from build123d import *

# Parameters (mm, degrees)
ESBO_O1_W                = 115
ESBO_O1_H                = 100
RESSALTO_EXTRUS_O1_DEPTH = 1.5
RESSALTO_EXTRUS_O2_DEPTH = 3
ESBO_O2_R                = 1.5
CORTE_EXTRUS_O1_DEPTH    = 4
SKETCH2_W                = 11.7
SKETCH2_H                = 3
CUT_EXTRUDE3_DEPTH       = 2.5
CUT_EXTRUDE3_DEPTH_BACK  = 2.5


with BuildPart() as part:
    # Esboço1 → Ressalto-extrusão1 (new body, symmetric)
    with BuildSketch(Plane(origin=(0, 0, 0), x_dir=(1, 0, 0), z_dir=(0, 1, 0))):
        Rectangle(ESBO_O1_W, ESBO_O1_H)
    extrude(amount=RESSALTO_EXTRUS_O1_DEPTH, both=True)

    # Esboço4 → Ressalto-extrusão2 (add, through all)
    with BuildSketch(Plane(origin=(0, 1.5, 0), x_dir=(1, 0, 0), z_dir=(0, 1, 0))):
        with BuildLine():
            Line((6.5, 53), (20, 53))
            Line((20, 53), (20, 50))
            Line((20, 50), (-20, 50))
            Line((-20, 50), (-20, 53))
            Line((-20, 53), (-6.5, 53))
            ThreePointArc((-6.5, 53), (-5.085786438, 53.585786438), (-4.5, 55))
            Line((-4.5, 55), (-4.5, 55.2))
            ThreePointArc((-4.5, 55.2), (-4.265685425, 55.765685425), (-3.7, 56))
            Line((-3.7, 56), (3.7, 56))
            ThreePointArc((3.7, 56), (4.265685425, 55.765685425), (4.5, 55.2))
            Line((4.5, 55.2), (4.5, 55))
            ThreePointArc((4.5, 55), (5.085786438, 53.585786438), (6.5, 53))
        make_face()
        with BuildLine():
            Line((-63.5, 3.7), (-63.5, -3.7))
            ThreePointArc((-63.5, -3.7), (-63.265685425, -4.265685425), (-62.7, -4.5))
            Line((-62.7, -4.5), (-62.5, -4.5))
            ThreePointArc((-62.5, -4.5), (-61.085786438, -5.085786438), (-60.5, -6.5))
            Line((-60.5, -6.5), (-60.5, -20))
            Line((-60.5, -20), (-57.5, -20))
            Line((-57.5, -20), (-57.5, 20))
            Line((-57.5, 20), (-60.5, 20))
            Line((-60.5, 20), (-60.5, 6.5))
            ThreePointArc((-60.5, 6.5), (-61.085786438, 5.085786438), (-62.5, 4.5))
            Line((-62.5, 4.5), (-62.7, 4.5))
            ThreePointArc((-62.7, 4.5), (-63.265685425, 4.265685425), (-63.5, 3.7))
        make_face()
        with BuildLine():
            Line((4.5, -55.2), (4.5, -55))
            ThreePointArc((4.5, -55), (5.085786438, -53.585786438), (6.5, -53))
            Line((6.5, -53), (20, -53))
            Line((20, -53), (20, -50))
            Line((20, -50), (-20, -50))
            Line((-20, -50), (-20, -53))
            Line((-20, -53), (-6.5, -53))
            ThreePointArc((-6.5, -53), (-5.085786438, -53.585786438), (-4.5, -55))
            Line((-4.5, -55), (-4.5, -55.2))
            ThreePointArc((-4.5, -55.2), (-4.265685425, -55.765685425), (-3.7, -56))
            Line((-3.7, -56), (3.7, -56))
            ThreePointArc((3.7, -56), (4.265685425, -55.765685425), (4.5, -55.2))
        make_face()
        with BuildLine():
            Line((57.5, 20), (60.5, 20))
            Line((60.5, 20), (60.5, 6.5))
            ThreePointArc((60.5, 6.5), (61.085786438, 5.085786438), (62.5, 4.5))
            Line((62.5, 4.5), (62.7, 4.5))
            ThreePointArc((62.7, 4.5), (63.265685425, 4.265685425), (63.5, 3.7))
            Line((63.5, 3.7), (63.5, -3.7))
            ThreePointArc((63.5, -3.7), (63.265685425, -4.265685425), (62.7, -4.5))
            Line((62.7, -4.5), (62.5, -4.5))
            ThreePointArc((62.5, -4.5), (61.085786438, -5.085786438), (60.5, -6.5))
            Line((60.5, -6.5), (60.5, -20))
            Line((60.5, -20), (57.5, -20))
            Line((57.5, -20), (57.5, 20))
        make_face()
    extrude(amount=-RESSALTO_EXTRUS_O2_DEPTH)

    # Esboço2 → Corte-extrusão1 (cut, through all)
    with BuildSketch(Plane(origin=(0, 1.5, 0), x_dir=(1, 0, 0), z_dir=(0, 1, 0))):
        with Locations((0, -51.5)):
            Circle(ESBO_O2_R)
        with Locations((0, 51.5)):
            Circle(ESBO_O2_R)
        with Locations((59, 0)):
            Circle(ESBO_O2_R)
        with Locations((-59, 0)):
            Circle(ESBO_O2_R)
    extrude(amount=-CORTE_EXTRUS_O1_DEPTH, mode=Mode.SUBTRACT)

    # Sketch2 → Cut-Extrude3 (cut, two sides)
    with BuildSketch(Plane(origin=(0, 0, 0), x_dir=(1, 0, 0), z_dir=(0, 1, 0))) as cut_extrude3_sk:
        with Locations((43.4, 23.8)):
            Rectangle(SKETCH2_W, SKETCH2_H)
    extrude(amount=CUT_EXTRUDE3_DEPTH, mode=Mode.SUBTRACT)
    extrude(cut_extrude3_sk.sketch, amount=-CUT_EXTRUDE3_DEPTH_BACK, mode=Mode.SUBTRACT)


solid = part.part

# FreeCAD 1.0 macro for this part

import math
import FreeCAD as App
import Part
import Sketcher

V = App.Vector
Q = App.Units.Quantity


def add_polygon(sketch, points):
    """Adds a closed chain of lines whose ends are joined by coincident constraints."""
    first, n = sketch.GeometryCount, len(points)
    for a, b in zip(points, points[1:] + points[:1]):
        sketch.addGeometry(Part.LineSegment(App.Vector(*a, 0), App.Vector(*b, 0)), False)
    for i in range(n):
        sketch.addConstraint(Sketcher.Constraint("Coincident", first + i, 2, first + (i + 1) % n, 1))

doc = App.newDocument("Part")
body = doc.addObject("PartDesign::Body", "Body")

sketch1 = doc.addObject("Sketcher::SketchObject", "Sketch")
body.addObject(sketch1)
sketch1.AttachmentSupport = (doc.XZ_Plane, [""])
sketch1.MapMode = "FlatFace"
add_polygon(sketch1, [(-58, -50), (-58, 50), (58, 50), (58, -50)])
sketch1.addConstraint([
    Sketcher.Constraint("Vertical", 0),
    Sketcher.Constraint("Horizontal", 1),
    Sketcher.Constraint("Vertical", 2),
    Sketcher.Constraint("Horizontal", 3),
    Sketcher.Constraint("Symmetric", 0, 2, 2, 2, -1, 1),
    Sketcher.Constraint("DistanceX", 1, 1, 1, 2, Q("115 mm")),
    Sketcher.Constraint("DistanceY", 0, 1, 0, 2, Q("100 mm")),
])
pad1 = doc.addObject("PartDesign::Pad", "Pad")
body.addObject(pad1)
pad1.Profile = sketch1
pad1.Length = 3
pad1.Midplane = True

sketch2 = doc.addObject("Sketcher::SketchObject", "Sketch001")
body.addObject(sketch2)
sketch2.AttachmentSupport = (doc.XZ_Plane, [""])
sketch2.MapMode = "FlatFace"
sketch2.AttachmentOffset = App.Placement(V(0, 0, -1.5), App.Rotation())
sketch2.addGeometry([
    Part.LineSegment(V(20, -53, 0), V(6.5, -53, 0)),
    Part.ArcOfCircle(Part.Circle(V(6.5, -55, 0), V(0, 0, 1), 2), math.radians(90), math.radians(180)),
    Part.LineSegment(V(4.5, -55, 0), V(4.5, -55.2, 0)),
    Part.ArcOfCircle(Part.Circle(V(3.7, -55.2, 0), V(0, 0, 1), 0.8), math.radians(-90), math.radians(0)),
    Part.LineSegment(V(3.7, -56, 0), V(-3.7, -56, 0)),
    Part.ArcOfCircle(Part.Circle(V(-3.7, -55.2, 0), V(0, 0, 1), 0.8), math.radians(180), math.radians(270)),
    Part.LineSegment(V(-4.5, -55.2, 0), V(-4.5, -55, 0)),
    Part.ArcOfCircle(Part.Circle(V(-6.5, -55, 0), V(0, 0, 1), 2), math.radians(0), math.radians(90)),
    Part.LineSegment(V(-6.5, -53, 0), V(-20, -53, 0)),
    Part.LineSegment(V(-20, -53, 0), V(-20, -50, 0)),
    Part.LineSegment(V(-20, -50, 0), V(20, -50, 0)),
    Part.LineSegment(V(20, -50, 0), V(20, -53, 0)),
    Part.LineSegment(V(-63.5, -3.7, 0), V(-63.5, 3.7, 0)),
    Part.ArcOfCircle(Part.Circle(V(-62.7, 3.7, 0), V(0, 0, 1), 0.8), math.radians(90), math.radians(180)),
    Part.LineSegment(V(-62.7, 4.5, 0), V(-62.5, 4.5, 0)),
    Part.ArcOfCircle(Part.Circle(V(-62.5, 6.5, 0), V(0, 0, 1), 2), math.radians(-90), math.radians(0)),
    Part.LineSegment(V(-60.5, 6.5, 0), V(-60.5, 20, 0)),
    Part.LineSegment(V(-60.5, 20, 0), V(-57.5, 20, 0)),
    Part.LineSegment(V(-57.5, 20, 0), V(-57.5, -20, 0)),
    Part.LineSegment(V(-57.5, -20, 0), V(-60.5, -20, 0)),
    Part.LineSegment(V(-60.5, -20, 0), V(-60.5, -6.5, 0)),
    Part.ArcOfCircle(Part.Circle(V(-62.5, -6.5, 0), V(0, 0, 1), 2), math.radians(0), math.radians(90)),
    Part.LineSegment(V(-62.5, -4.5, 0), V(-62.7, -4.5, 0)),
    Part.ArcOfCircle(Part.Circle(V(-62.7, -3.7, 0), V(0, 0, 1), 0.8), math.radians(180), math.radians(270)),
    Part.LineSegment(V(4.5, 55.2, 0), V(4.5, 55, 0)),
    Part.ArcOfCircle(Part.Circle(V(6.5, 55, 0), V(0, 0, 1), 2), math.radians(-180), math.radians(-90)),
    Part.LineSegment(V(6.5, 53, 0), V(20, 53, 0)),
    Part.LineSegment(V(20, 53, 0), V(20, 50, 0)),
    Part.LineSegment(V(20, 50, 0), V(-20, 50, 0)),
    Part.LineSegment(V(-20, 50, 0), V(-20, 53, 0)),
    Part.LineSegment(V(-20, 53, 0), V(-6.5, 53, 0)),
    Part.ArcOfCircle(Part.Circle(V(-6.5, 55, 0), V(0, 0, 1), 2), math.radians(-90), math.radians(0)),
    Part.LineSegment(V(-4.5, 55, 0), V(-4.5, 55.2, 0)),
    Part.ArcOfCircle(Part.Circle(V(-3.7, 55.2, 0), V(0, 0, 1), 0.8), math.radians(90), math.radians(180)),
    Part.LineSegment(V(-3.7, 56, 0), V(3.7, 56, 0)),
    Part.ArcOfCircle(Part.Circle(V(3.7, 55.2, 0), V(0, 0, 1), 0.8), math.radians(0), math.radians(90)),
    Part.LineSegment(V(60.5, -20, 0), V(57.5, -20, 0)),
    Part.LineSegment(V(57.5, -20, 0), V(57.5, 20, 0)),
    Part.LineSegment(V(57.5, 20, 0), V(60.5, 20, 0)),
    Part.LineSegment(V(60.5, 20, 0), V(60.5, 6.5, 0)),
    Part.ArcOfCircle(Part.Circle(V(62.5, 6.5, 0), V(0, 0, 1), 2), math.radians(-180), math.radians(-90)),
    Part.LineSegment(V(62.5, 4.5, 0), V(62.7, 4.5, 0)),
    Part.ArcOfCircle(Part.Circle(V(62.7, 3.7, 0), V(0, 0, 1), 0.8), math.radians(0), math.radians(90)),
    Part.LineSegment(V(63.5, 3.7, 0), V(63.5, -3.7, 0)),
    Part.ArcOfCircle(Part.Circle(V(62.7, -3.7, 0), V(0, 0, 1), 0.8), math.radians(-90), math.radians(0)),
    Part.LineSegment(V(62.7, -4.5, 0), V(62.5, -4.5, 0)),
    Part.ArcOfCircle(Part.Circle(V(62.5, -6.5, 0), V(0, 0, 1), 2), math.radians(90), math.radians(180)),
    Part.LineSegment(V(60.5, -6.5, 0), V(60.5, -20, 0)),
], False)
sketch2.addConstraint([
    Sketcher.Constraint("Tangent", 0, 2, 1, 1),
    Sketcher.Constraint("Tangent", 1, 2, 2, 1),
    Sketcher.Constraint("Tangent", 2, 2, 3, 2),
    Sketcher.Constraint("Tangent", 3, 1, 4, 1),
    Sketcher.Constraint("Tangent", 4, 2, 5, 2),
    Sketcher.Constraint("Tangent", 5, 1, 6, 1),
    Sketcher.Constraint("Tangent", 6, 2, 7, 1),
    Sketcher.Constraint("Tangent", 7, 2, 8, 1),
    Sketcher.Constraint("Coincident", 8, 2, 9, 1),
    Sketcher.Constraint("Coincident", 9, 2, 10, 1),
    Sketcher.Constraint("Coincident", 10, 2, 11, 1),
    Sketcher.Constraint("Coincident", 11, 2, 0, 1),
    Sketcher.Constraint("Tangent", 12, 2, 13, 2),
    Sketcher.Constraint("Tangent", 13, 1, 14, 1),
    Sketcher.Constraint("Tangent", 14, 2, 15, 1),
    Sketcher.Constraint("Tangent", 15, 2, 16, 1),
    Sketcher.Constraint("Coincident", 16, 2, 17, 1),
    Sketcher.Constraint("Coincident", 17, 2, 18, 1),
    Sketcher.Constraint("Coincident", 18, 2, 19, 1),
    Sketcher.Constraint("Coincident", 19, 2, 20, 1),
    Sketcher.Constraint("Tangent", 20, 2, 21, 1),
    Sketcher.Constraint("Tangent", 21, 2, 22, 1),
    Sketcher.Constraint("Tangent", 22, 2, 23, 2),
    Sketcher.Constraint("Tangent", 23, 1, 12, 1),
    Sketcher.Constraint("Tangent", 24, 2, 25, 1),
    Sketcher.Constraint("Tangent", 25, 2, 26, 1),
    Sketcher.Constraint("Coincident", 26, 2, 27, 1),
    Sketcher.Constraint("Coincident", 27, 2, 28, 1),
    Sketcher.Constraint("Coincident", 28, 2, 29, 1),
    Sketcher.Constraint("Coincident", 29, 2, 30, 1),
    Sketcher.Constraint("Tangent", 30, 2, 31, 1),
    Sketcher.Constraint("Tangent", 31, 2, 32, 1),
    Sketcher.Constraint("Tangent", 32, 2, 33, 2),
    Sketcher.Constraint("Tangent", 33, 1, 34, 1),
    Sketcher.Constraint("Tangent", 34, 2, 35, 2),
    Sketcher.Constraint("Tangent", 35, 1, 24, 1),
    Sketcher.Constraint("Coincident", 36, 2, 37, 1),
    Sketcher.Constraint("Coincident", 37, 2, 38, 1),
    Sketcher.Constraint("Coincident", 38, 2, 39, 1),
    Sketcher.Constraint("Tangent", 39, 2, 40, 1),
    Sketcher.Constraint("Tangent", 40, 2, 41, 1),
    Sketcher.Constraint("Tangent", 41, 2, 42, 2),
    Sketcher.Constraint("Tangent", 42, 1, 43, 1),
    Sketcher.Constraint("Tangent", 43, 2, 44, 2),
    Sketcher.Constraint("Tangent", 44, 1, 45, 1),
    Sketcher.Constraint("Tangent", 45, 2, 46, 1),
    Sketcher.Constraint("Tangent", 46, 2, 47, 1),
    Sketcher.Constraint("Coincident", 47, 2, 36, 1),
    Sketcher.Constraint("Horizontal", 0),
    Sketcher.Constraint("Vertical", 2),
    Sketcher.Constraint("Horizontal", 4),
    Sketcher.Constraint("Vertical", 6),
    Sketcher.Constraint("Horizontal", 8),
    Sketcher.Constraint("Vertical", 9),
    Sketcher.Constraint("Horizontal", 10),
    Sketcher.Constraint("Vertical", 11),
    Sketcher.Constraint("Vertical", 12),
    Sketcher.Constraint("Horizontal", 14),
    Sketcher.Constraint("Vertical", 16),
    Sketcher.Constraint("Horizontal", 17),
    Sketcher.Constraint("Vertical", 18),
    Sketcher.Constraint("Horizontal", 19),
    Sketcher.Constraint("Vertical", 20),
    Sketcher.Constraint("Horizontal", 22),
    Sketcher.Constraint("Vertical", 24),
    Sketcher.Constraint("Horizontal", 26),
    Sketcher.Constraint("Vertical", 27),
    Sketcher.Constraint("Horizontal", 28),
    Sketcher.Constraint("Vertical", 29),
    Sketcher.Constraint("Horizontal", 30),
    Sketcher.Constraint("Vertical", 32),
    Sketcher.Constraint("Horizontal", 34),
    Sketcher.Constraint("Horizontal", 36),
    Sketcher.Constraint("Vertical", 37),
    Sketcher.Constraint("Horizontal", 38),
    Sketcher.Constraint("Vertical", 39),
    Sketcher.Constraint("Horizontal", 41),
    Sketcher.Constraint("Vertical", 43),
    Sketcher.Constraint("Horizontal", 45),
    Sketcher.Constraint("Vertical", 47),
    Sketcher.Constraint("Equal", 3, 5),
    Sketcher.Constraint("Equal", 1, 7),
    Sketcher.Constraint("Equal", 5, 13),
    Sketcher.Constraint("Equal", 7, 15),
    Sketcher.Constraint("Equal", 15, 21),
    Sketcher.Constraint("Equal", 13, 23),
    Sketcher.Constraint("Equal", 21, 25),
    Sketcher.Constraint("Equal", 25, 31),
    Sketcher.Constraint("Equal", 23, 33),
    Sketcher.Constraint("Equal", 33, 35),
    Sketcher.Constraint("Equal", 31, 40),
    Sketcher.Constraint("Equal", 35, 42),
    Sketcher.Constraint("Equal", 42, 44),
    Sketcher.Constraint("Equal", 40, 46),
    Sketcher.Constraint("Symmetric", 7, 3, 25, 3, -1, 1),
    Sketcher.Constraint("Symmetric", 1, 3, 31, 3, -1, 1),
    Sketcher.Constraint("Symmetric", 21, 3, 40, 3, -1, 1),
    Sketcher.Constraint("Symmetric", 13, 3, 44, 3, -1, 1),
    Sketcher.Constraint("Symmetric", 9, 2, 27, 2, -1, 1),
    Sketcher.Constraint("Symmetric", 17, 2, 36, 2, -1, 1),
    Sketcher.Constraint("Symmetric", 1, 3, 7, 3, -2),
    Sketcher.Constraint("Symmetric", 15, 3, 40, 3, -2),
    Sketcher.Constraint("Symmetric", 19, 2, 47, 2, -2),
    Sketcher.Constraint("Horizontal", 17, 2, 37, 2),
    Sketcher.Constraint("Vertical", 11, 2, 26, 2),
    Sketcher.Constraint("Vertical", 9, 2, 28, 2),
    Sketcher.Constraint("Equal", 45, 2),
    Sketcher.Constraint("Equal", 38, 9),
    Sketcher.Constraint("Equal", 34, 12),
    Sketcher.Constraint("Equal", 30, 16),
    Sketcher.Constraint("Equal", 6, 24),
    Sketcher.Constraint("Radius", 1, Q("2 mm")),
    Sketcher.Constraint("Radius", 3, Q("0.8 mm")),
    Sketcher.Constraint("DistanceX", 10, 1, 10, 2, Q("40 mm")),
    Sketcher.Constraint("DistanceX", 17, 1, 17, 2, Q("3 mm")),
    Sketcher.Constraint("DistanceX", 0, 2, 0, 1, Q("13.5 mm")),
    Sketcher.Constraint("DistanceX", 14, 1, 14, 2, Q("0.2 mm")),
    Sketcher.Constraint("DistanceY", 1, 3, -1, 1, Q("55 mm")),
    Sketcher.Constraint("DistanceX", 13, 3, -1, 1, Q("62.7 mm")),
])
pad2 = doc.addObject("PartDesign::Pad", "Pad001")
body.addObject(pad2)
pad2.Profile = sketch2
pad2.Type = "UpToLast"

sketch3 = doc.addObject("Sketcher::SketchObject", "Sketch002")
body.addObject(sketch3)
sketch3.AttachmentSupport = (doc.XZ_Plane, [""])
sketch3.MapMode = "FlatFace"
sketch3.AttachmentOffset = App.Placement(V(0, 0, -1.5), App.Rotation())
sketch3.addGeometry([
    Part.Circle(V(0, 51.5, 0), V(0, 0, 1), 1.5),
    Part.Circle(V(0, -51.5, 0), V(0, 0, 1), 1.5),
    Part.Circle(V(59, 0, 0), V(0, 0, 1), 1.5),
    Part.Circle(V(-59, 0, 0), V(0, 0, 1), 1.5),
], False)
sketch3.addConstraint([
    Sketcher.Constraint("Equal", 0, 1),
    Sketcher.Constraint("Equal", 1, 2),
    Sketcher.Constraint("Equal", 2, 3),
    Sketcher.Constraint("Symmetric", 0, 3, 1, 3, -1, 1),
    Sketcher.Constraint("Symmetric", 2, 3, 3, 3, -1, 1),
    Sketcher.Constraint("PointOnObject", 0, 3, -2),
    Sketcher.Constraint("PointOnObject", 2, 3, -1),
    Sketcher.Constraint("Diameter", 0, Q("3 mm")),
    Sketcher.Constraint("DistanceX", -1, 1, 2, 3, Q("59 mm")),
    Sketcher.Constraint("DistanceY", 1, 3, 0, 3, Q("103 mm")),
])
pocket1 = doc.addObject("PartDesign::Pocket", "Pocket")
body.addObject(pocket1)
pocket1.Profile = sketch3
pocket1.Type = "ThroughAll"
pocket1.Reversed = True

sketch4 = doc.addObject("Sketcher::SketchObject", "Sketch003")
body.addObject(sketch4)
sketch4.AttachmentSupport = (doc.XZ_Plane, [""])
sketch4.MapMode = "FlatFace"
add_polygon(sketch4, [(37.5, -25.3), (37.5, -22.3), (49.2, -22.3), (49.2, -25.3)])
sketch4.addConstraint([
    Sketcher.Constraint("Vertical", 0),
    Sketcher.Constraint("Horizontal", 1),
    Sketcher.Constraint("Vertical", 2),
    Sketcher.Constraint("Horizontal", 3),
    Sketcher.Constraint("DistanceY", 0, 1, 0, 2, Q("3 mm")),
    Sketcher.Constraint("DistanceX", 1, 1, 1, 2, Q("11.7 mm")),
    Sketcher.Constraint("DistanceY", 0, 2, -1, 1, Q("22.3 mm")),
    Sketcher.Constraint("DistanceX", -1, 1, 0, 2, Q("37.55 mm")),
])
pocket2 = doc.addObject("PartDesign::Pocket", "Pocket001")
body.addObject(pocket2)
pocket2.Profile = sketch4
pocket2.Type = "ThroughAll"
pocket2.Midplane = True

doc.recompute()
